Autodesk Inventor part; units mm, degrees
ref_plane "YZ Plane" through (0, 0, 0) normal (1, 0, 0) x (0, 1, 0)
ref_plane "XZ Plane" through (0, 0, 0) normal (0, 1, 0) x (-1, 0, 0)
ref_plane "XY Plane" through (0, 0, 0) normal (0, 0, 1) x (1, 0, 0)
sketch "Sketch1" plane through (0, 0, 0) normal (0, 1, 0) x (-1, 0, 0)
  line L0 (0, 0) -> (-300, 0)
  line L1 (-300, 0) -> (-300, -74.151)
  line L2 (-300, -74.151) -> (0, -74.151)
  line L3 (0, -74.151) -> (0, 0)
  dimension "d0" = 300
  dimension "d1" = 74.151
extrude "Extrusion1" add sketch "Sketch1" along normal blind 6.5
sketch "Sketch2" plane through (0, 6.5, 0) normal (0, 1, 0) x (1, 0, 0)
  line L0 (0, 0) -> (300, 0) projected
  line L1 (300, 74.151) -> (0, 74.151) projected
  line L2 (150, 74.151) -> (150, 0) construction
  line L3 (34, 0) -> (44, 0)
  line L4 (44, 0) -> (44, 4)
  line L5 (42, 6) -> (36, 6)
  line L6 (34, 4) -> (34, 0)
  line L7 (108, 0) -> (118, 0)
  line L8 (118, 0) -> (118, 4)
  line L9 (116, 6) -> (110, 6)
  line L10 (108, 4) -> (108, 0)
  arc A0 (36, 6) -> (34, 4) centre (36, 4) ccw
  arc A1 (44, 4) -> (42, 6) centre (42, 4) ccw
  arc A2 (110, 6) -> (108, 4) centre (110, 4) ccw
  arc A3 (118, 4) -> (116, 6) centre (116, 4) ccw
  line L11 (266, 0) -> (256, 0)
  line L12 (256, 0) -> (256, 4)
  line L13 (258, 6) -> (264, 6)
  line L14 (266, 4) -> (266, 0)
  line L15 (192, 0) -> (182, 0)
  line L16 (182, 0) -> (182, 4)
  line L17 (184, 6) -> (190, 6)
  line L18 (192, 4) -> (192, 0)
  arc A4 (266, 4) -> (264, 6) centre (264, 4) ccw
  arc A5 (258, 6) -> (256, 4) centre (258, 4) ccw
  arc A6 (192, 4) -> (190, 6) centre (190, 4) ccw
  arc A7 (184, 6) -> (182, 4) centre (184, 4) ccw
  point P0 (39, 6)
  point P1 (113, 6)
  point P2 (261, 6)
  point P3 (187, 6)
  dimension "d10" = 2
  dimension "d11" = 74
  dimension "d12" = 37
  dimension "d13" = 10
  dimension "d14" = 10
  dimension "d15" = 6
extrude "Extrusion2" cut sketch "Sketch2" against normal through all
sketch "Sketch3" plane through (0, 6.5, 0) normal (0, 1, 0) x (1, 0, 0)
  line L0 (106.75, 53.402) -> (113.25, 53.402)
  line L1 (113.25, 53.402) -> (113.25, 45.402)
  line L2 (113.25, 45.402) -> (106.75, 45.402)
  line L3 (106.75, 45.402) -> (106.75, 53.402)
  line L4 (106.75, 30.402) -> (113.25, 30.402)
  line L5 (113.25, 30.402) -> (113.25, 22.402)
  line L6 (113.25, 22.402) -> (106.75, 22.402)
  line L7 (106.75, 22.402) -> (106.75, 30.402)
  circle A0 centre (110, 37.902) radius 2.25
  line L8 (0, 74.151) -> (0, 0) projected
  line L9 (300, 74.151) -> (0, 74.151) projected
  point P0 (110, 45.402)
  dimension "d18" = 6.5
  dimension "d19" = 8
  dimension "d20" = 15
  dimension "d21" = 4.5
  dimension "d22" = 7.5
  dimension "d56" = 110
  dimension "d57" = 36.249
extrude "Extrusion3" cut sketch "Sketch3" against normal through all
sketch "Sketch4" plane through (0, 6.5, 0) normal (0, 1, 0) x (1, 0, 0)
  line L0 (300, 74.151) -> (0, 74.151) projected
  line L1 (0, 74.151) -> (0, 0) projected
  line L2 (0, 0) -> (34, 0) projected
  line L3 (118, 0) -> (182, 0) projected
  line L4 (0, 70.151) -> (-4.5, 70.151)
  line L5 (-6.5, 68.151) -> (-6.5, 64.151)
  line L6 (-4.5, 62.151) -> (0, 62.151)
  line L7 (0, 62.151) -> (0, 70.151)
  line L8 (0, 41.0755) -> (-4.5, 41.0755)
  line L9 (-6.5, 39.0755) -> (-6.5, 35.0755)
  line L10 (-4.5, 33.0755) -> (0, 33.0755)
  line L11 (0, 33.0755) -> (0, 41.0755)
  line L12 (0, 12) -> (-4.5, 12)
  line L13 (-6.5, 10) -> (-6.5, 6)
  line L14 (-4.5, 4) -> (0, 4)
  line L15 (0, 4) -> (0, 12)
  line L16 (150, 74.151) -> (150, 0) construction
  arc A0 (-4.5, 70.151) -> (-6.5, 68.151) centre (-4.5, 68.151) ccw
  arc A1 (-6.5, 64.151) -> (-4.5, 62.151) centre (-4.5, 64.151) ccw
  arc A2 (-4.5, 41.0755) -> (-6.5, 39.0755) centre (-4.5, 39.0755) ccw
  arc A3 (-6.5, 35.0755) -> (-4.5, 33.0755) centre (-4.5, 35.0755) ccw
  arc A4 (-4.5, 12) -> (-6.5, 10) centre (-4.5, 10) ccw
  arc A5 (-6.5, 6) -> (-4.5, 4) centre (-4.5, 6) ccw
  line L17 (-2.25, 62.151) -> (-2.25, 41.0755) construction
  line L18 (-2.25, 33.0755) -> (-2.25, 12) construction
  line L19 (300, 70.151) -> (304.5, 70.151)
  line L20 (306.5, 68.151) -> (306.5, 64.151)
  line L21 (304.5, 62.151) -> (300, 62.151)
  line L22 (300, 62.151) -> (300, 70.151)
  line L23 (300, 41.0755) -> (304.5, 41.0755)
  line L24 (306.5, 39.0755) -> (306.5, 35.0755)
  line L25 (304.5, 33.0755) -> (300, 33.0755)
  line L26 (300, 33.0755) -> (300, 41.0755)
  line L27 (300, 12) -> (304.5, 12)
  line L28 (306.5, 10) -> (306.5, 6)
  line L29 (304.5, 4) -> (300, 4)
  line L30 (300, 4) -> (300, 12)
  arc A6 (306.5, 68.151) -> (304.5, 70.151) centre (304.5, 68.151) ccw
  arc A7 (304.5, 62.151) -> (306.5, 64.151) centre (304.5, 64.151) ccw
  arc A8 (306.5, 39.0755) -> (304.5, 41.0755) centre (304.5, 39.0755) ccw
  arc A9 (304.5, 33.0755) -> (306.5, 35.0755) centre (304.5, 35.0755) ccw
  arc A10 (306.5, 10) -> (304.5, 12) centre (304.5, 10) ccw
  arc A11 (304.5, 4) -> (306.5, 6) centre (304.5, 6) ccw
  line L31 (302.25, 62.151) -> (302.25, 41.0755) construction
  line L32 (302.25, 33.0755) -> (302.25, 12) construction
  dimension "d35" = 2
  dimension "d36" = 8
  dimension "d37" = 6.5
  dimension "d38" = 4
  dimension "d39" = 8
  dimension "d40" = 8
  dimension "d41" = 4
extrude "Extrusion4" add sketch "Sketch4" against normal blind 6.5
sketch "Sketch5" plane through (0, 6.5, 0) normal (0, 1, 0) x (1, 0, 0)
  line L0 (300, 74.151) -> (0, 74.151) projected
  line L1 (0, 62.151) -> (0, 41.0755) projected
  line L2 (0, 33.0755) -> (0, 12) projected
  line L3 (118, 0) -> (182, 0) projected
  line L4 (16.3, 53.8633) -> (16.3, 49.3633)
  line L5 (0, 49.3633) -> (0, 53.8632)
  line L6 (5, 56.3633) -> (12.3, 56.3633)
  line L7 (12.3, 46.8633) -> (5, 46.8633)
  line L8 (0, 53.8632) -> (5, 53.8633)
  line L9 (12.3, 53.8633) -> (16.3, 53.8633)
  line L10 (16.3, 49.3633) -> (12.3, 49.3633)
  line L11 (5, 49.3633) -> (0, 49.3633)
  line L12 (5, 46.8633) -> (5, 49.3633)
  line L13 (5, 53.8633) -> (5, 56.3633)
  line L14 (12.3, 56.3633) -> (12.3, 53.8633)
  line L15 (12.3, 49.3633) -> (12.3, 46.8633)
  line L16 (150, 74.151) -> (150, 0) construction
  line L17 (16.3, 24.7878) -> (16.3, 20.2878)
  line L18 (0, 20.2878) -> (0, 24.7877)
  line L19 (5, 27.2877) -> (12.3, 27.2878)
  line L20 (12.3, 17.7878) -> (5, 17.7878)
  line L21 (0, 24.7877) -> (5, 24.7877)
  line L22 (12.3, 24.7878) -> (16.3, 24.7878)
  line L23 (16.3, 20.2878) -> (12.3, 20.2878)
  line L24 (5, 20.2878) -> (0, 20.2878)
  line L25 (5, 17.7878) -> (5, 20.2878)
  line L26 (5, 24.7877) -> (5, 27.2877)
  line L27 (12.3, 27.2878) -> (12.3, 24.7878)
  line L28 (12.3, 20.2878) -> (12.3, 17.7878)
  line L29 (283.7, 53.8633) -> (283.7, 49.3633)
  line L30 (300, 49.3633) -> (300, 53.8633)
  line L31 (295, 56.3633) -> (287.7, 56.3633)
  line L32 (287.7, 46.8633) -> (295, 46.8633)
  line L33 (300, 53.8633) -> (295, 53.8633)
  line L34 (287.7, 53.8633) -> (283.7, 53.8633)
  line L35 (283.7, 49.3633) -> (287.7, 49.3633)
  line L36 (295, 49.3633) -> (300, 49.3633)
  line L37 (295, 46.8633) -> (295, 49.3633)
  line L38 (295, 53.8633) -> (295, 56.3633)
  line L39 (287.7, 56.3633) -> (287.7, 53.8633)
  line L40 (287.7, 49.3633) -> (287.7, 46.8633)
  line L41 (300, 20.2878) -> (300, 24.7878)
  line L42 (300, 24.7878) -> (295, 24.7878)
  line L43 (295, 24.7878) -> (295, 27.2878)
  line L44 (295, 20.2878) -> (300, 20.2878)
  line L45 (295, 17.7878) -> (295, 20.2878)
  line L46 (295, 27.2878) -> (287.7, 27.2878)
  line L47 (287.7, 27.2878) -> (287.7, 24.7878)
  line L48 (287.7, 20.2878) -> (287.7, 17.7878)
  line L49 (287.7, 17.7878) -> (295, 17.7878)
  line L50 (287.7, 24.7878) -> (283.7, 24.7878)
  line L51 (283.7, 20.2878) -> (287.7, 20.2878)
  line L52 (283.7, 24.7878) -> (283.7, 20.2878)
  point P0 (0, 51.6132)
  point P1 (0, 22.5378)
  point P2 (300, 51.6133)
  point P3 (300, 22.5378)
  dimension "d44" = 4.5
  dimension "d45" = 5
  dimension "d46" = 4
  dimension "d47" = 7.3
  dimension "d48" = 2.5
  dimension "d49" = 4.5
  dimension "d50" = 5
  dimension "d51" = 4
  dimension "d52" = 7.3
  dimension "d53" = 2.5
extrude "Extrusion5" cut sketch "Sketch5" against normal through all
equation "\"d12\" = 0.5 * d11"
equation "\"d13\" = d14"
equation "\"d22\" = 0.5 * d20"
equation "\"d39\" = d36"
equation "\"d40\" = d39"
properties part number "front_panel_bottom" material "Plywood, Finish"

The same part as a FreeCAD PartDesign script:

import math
import FreeCAD as App
import Part
import Sketcher
from FreeCAD import Vector
Q = App.Units.Quantity


def add_polygon(sketch, points):
    """Adds a closed chain of lines whose ends are joined by coincident constraints."""
    first, n = sketch.GeometryCount, len(points)
    for a, b in zip(points, points[1:] + points[:1]):
        sketch.addGeometry(Part.LineSegment(App.Vector(*a, 0), App.Vector(*b, 0)), False)
    for i in range(n):
        sketch.addConstraint(Sketcher.Constraint("Coincident", first + i, 2, first + (i + 1) % n, 1))

doc = App.newDocument("Part")
body = doc.addObject("PartDesign::Body", "Body")

# Sketch on XZ plane
sketch1 = body.newObject("Sketcher::SketchObject", "Sketch")
sketch1.AttachmentSupport = (doc.getObject("XZ_Plane"), [""])
sketch1.MapMode = "FlatFace"
add_polygon(sketch1, [(0, -74), (0, 0), (300, 0), (300, -74)])  # lines 0-3
sketch1.addConstraint([
    Sketcher.Constraint("Vertical", 0),
    Sketcher.Constraint("Horizontal", 1),
    Sketcher.Constraint("Vertical", 2),
    Sketcher.Constraint("Horizontal", 3),
    Sketcher.Constraint("Coincident", 0, 2, -1, 1),
    Sketcher.Constraint("DistanceX", 1, 1, 1, 2, Q("300 mm")),
    Sketcher.Constraint("DistanceY", 0, 1, 0, 2, Q("74.151 mm")),
])
pad1 = body.newObject("PartDesign::Pad", "Pad")
pad1.Profile = sketch1
pad1.Length = 6.5
pad1.Reversed = True

# Sketch on XZ plane
sketch2 = body.newObject("Sketcher::SketchObject", "Sketch001")
sketch2.AttachmentSupport = (doc.getObject("XZ_Plane"), [""])
sketch2.MapMode = "FlatFace"
sketch2.AttachmentOffset = App.Placement(Vector(0, 0, -6.5), App.Rotation())
sketch2.addGeometry([
    Part.LineSegment(Vector(34, -4, 0), Vector(34, 0, 0)),  # 0
    Part.LineSegment(Vector(34, 0, 0), Vector(44, 0, 0)),  # 1
    Part.LineSegment(Vector(44, 0, 0), Vector(44, -4, 0)),  # 2
    Part.ArcOfCircle(Part.Circle(Vector(42, -4, 0), Vector(0, 0, 1), 2), math.radians(-90), math.radians(0)),  # 3
    Part.LineSegment(Vector(42, -6, 0), Vector(36, -6, 0)),  # 4
    Part.ArcOfCircle(Part.Circle(Vector(36, -4, 0), Vector(0, 0, 1), 2), math.radians(180), math.radians(270)),  # 5
    Part.LineSegment(Vector(256, -4, 0), Vector(256, 0, 0)),  # 6
    Part.LineSegment(Vector(256, 0, 0), Vector(266, 0, 0)),  # 7
    Part.LineSegment(Vector(266, 0, 0), Vector(266, -4, 0)),  # 8
    Part.ArcOfCircle(Part.Circle(Vector(264, -4, 0), Vector(0, 0, 1), 2), math.radians(-90), math.radians(0)),  # 9
    Part.LineSegment(Vector(264, -6, 0), Vector(258, -6, 0)),  # 10
    Part.ArcOfCircle(Part.Circle(Vector(258, -4, 0), Vector(0, 0, 1), 2), math.radians(180), math.radians(270)),  # 11
    Part.LineSegment(Vector(182, -4, 0), Vector(182, 0, 0)),  # 12
    Part.LineSegment(Vector(182, 0, 0), Vector(192, 0, 0)),  # 13
    Part.LineSegment(Vector(192, 0, 0), Vector(192, -4, 0)),  # 14
    Part.ArcOfCircle(Part.Circle(Vector(190, -4, 0), Vector(0, 0, 1), 2), math.radians(-90), math.radians(0)),  # 15
    Part.LineSegment(Vector(190, -6, 0), Vector(184, -6, 0)),  # 16
    Part.ArcOfCircle(Part.Circle(Vector(184, -4, 0), Vector(0, 0, 1), 2), math.radians(180), math.radians(270)),  # 17
    Part.LineSegment(Vector(108, -4, 0), Vector(108, 0, 0)),  # 18
    Part.LineSegment(Vector(108, 0, 0), Vector(118, 0, 0)),  # 19
    Part.LineSegment(Vector(118, 0, 0), Vector(118, -4, 0)),  # 20
    Part.ArcOfCircle(Part.Circle(Vector(116, -4, 0), Vector(0, 0, 1), 2), math.radians(-90), math.radians(0)),  # 21
    Part.LineSegment(Vector(116, -6, 0), Vector(110, -6, 0)),  # 22
    Part.ArcOfCircle(Part.Circle(Vector(110, -4, 0), Vector(0, 0, 1), 2), math.radians(180), math.radians(270)),  # 23
], False)
sketch2.addConstraint([
    Sketcher.Constraint("Coincident", 0, 2, 1, 1),
    Sketcher.Constraint("Coincident", 1, 2, 2, 1),
    Sketcher.Constraint("Tangent", 2, 2, 3, 2),
    Sketcher.Constraint("Tangent", 3, 1, 4, 1),
    Sketcher.Constraint("Tangent", 4, 2, 5, 2),
    Sketcher.Constraint("Tangent", 5, 1, 0, 1),
    Sketcher.Constraint("Coincident", 6, 2, 7, 1),
    Sketcher.Constraint("Coincident", 7, 2, 8, 1),
    Sketcher.Constraint("Tangent", 8, 2, 9, 2),
    Sketcher.Constraint("Tangent", 9, 1, 10, 1),
    Sketcher.Constraint("Tangent", 10, 2, 11, 2),
    Sketcher.Constraint("Tangent", 11, 1, 6, 1),
    Sketcher.Constraint("Coincident", 12, 2, 13, 1),
    Sketcher.Constraint("Coincident", 13, 2, 14, 1),
    Sketcher.Constraint("Tangent", 14, 2, 15, 2),
    Sketcher.Constraint("Tangent", 15, 1, 16, 1),
    Sketcher.Constraint("Tangent", 16, 2, 17, 2),
    Sketcher.Constraint("Tangent", 17, 1, 12, 1),
    Sketcher.Constraint("Coincident", 18, 2, 19, 1),
    Sketcher.Constraint("Coincident", 19, 2, 20, 1),
    Sketcher.Constraint("Tangent", 20, 2, 21, 2),
    Sketcher.Constraint("Tangent", 21, 1, 22, 1),
    Sketcher.Constraint("Tangent", 22, 2, 23, 2),
    Sketcher.Constraint("Tangent", 23, 1, 18, 1),
    Sketcher.Constraint("Vertical", 0),
    Sketcher.Constraint("Horizontal", 1),
    Sketcher.Constraint("Vertical", 2),
    Sketcher.Constraint("Horizontal", 4),
    Sketcher.Constraint("Vertical", 6),
    Sketcher.Constraint("Horizontal", 7),
    Sketcher.Constraint("Vertical", 8),
    Sketcher.Constraint("Horizontal", 10),
    Sketcher.Constraint("Vertical", 12),
    Sketcher.Constraint("Horizontal", 13),
    Sketcher.Constraint("Vertical", 14),
    Sketcher.Constraint("Horizontal", 16),
    Sketcher.Constraint("Vertical", 18),
    Sketcher.Constraint("Horizontal", 19),
    Sketcher.Constraint("Vertical", 20),
    Sketcher.Constraint("Horizontal", 22),
    Sketcher.Constraint("Equal", 3, 5),
    Sketcher.Constraint("Equal", 5, 9),
    Sketcher.Constraint("Equal", 9, 11),
    Sketcher.Constraint("Equal", 11, 15),
    Sketcher.Constraint("Equal", 15, 17),
    Sketcher.Constraint("Equal", 17, 21),
    Sketcher.Constraint("Equal", 21, 23),
    Sketcher.Constraint("PointOnObject", 0, 2, -1),
    Sketcher.Constraint("PointOnObject", 6, 2, -1),
    Sketcher.Constraint("PointOnObject", 12, 2, -1),
    Sketcher.Constraint("PointOnObject", 18, 2, -1),
    Sketcher.Constraint("Horizontal", 5, 3, 9, 3),
    Sketcher.Constraint("Horizontal", 11, 3, 15, 3),
    Sketcher.Constraint("Horizontal", 17, 3, 21, 3),
    Sketcher.Constraint("Equal", 1, 7),
    Sketcher.Constraint("Equal", 7, 13),
    Sketcher.Constraint("Equal", 13, 19),
    Sketcher.Constraint("Radius", 3, Q("2 mm")),
    Sketcher.Constraint("DistanceX", 1, 1, 1, 2, Q("10 mm")),
    Sketcher.Constraint("DistanceY", 3, 1, -1, 1, Q("6 mm")),
    Sketcher.Constraint("DistanceX", 15, 3, 9, 3, Q("74 mm")),
    Sketcher.Constraint("DistanceX", 3, 3, 21, 3, Q("74 mm")),
    Sketcher.Constraint("DistanceX", 21, 3, 15, 3, Q("74 mm")),
    Sketcher.Constraint("DistanceX", -1, 1, 3, 3, Q("42 mm")),
])
pocket1 = body.newObject("PartDesign::Pocket", "Pocket")
pocket1.Profile = sketch2
pocket1.Type = "ThroughAll"
pocket1.Reversed = True

# Sketch on XZ plane
sketch3 = body.newObject("Sketcher::SketchObject", "Sketch002")
sketch3.AttachmentSupport = (doc.getObject("XZ_Plane"), [""])
sketch3.MapMode = "FlatFace"
sketch3.AttachmentOffset = App.Placement(Vector(0, 0, -6.5), App.Rotation())
add_polygon(sketch3, [(113.2, -53.4), (106.8, -53.4), (106.8, -45.4), (113.2, -45.4)])  # lines 0-3
add_polygon(sketch3, [(113.2, -30.4), (106.8, -30.4), (106.8, -22.4), (113.2, -22.4)])  # lines 4-7
sketch3.addGeometry(Part.Circle(Vector(110, -37.9, 0), Vector(0, 0, 1), 2.2), False)  # 8
sketch3.addConstraint([
    Sketcher.Constraint("Horizontal", 0),
    Sketcher.Constraint("Vertical", 1),
    Sketcher.Constraint("Horizontal", 2),
    Sketcher.Constraint("Vertical", 3),
    Sketcher.Constraint("Horizontal", 4),
    Sketcher.Constraint("Vertical", 5),
    Sketcher.Constraint("Horizontal", 6),
    Sketcher.Constraint("Vertical", 7),
    Sketcher.Constraint("Vertical", 1, 2, 4, 2),
    Sketcher.Constraint("Vertical", 3, 2, 6, 2),
    Sketcher.Constraint("Equal", 3, 5),
    Sketcher.Constraint("Diameter", 8, Q("4.5 mm")),
    Sketcher.Constraint("DistanceY", 1, 1, 1, 2, Q("8 mm")),
    Sketcher.Constraint("DistanceX", 0, 2, 0, 1, Q("6.5 mm")),
    Sketcher.Constraint("DistanceX", -1, 1, 8, 3, Q("110 mm")),
    Sketcher.Constraint("DistanceY", 1, 2, 4, 2, Q("15 mm")),
    Sketcher.Constraint("DistanceY", 1, 2, 8, 3, Q("7.5 mm")),
    Sketcher.Constraint("DistanceX", -1, 1, 0, 2, Q("106.75 mm")),
    Sketcher.Constraint("DistanceY", 8, 3, -1, 1, Q("37.902 mm")),
])
pocket2 = body.newObject("PartDesign::Pocket", "Pocket001")
pocket2.Profile = sketch3
pocket2.Type = "ThroughAll"
pocket2.Reversed = True

# Sketch on XZ plane
sketch4 = body.newObject("Sketcher::SketchObject", "Sketch003")
sketch4.AttachmentSupport = (doc.getObject("XZ_Plane"), [""])
sketch4.MapMode = "FlatFace"
sketch4.AttachmentOffset = App.Placement(Vector(0, 0, -6.5), App.Rotation())
sketch4.addGeometry([
    Part.LineSegment(Vector(0, -4, 0), Vector(0, -12, 0)),  # 0
    Part.LineSegment(Vector(0, -12, 0), Vector(-4.5, -12, 0)),  # 1
    Part.ArcOfCircle(Part.Circle(Vector(-4.5, -10, 0), Vector(0, 0, 1), 2), math.radians(180), math.radians(270)),  # 2
    Part.LineSegment(Vector(-6.5, -10, 0), Vector(-6.5, -6, 0)),  # 3
    Part.ArcOfCircle(Part.Circle(Vector(-4.5, -6, 0), Vector(0, 0, 1), 2), math.radians(90), math.radians(180)),  # 4
    Part.LineSegment(Vector(-4.5, -4, 0), Vector(0, -4, 0)),  # 5
    Part.LineSegment(Vector(0, -33.1, 0), Vector(0, -41.1, 0)),  # 6
    Part.LineSegment(Vector(0, -41.1, 0), Vector(-4.5, -41.1, 0)),  # 7
    Part.ArcOfCircle(Part.Circle(Vector(-4.5, -39.1, 0), Vector(0, 0, 1), 2), math.radians(180), math.radians(270)),  # 8
    Part.LineSegment(Vector(-6.5, -39.1, 0), Vector(-6.5, -35.1, 0)),  # 9
    Part.ArcOfCircle(Part.Circle(Vector(-4.5, -35.1, 0), Vector(0, 0, 1), 2), math.radians(90), math.radians(180)),  # 10
    Part.LineSegment(Vector(-4.5, -33.1, 0), Vector(0, -33.1, 0)),  # 11
    Part.LineSegment(Vector(0, -62.2, 0), Vector(0, -70.2, 0)),  # 12
    Part.LineSegment(Vector(0, -70.2, 0), Vector(-4.5, -70.2, 0)),  # 13
    Part.ArcOfCircle(Part.Circle(Vector(-4.5, -68.2, 0), Vector(0, 0, 1), 2), math.radians(180), math.radians(270)),  # 14
    Part.LineSegment(Vector(-6.5, -68.2, 0), Vector(-6.5, -64.2, 0)),  # 15
    Part.ArcOfCircle(Part.Circle(Vector(-4.5, -64.2, 0), Vector(0, 0, 1), 2), math.radians(90), math.radians(180)),  # 16
    Part.LineSegment(Vector(-4.5, -62.2, 0), Vector(0, -62.2, 0)),  # 17
    Part.LineSegment(Vector(304.5, -70.2, 0), Vector(300, -70.2, 0)),  # 18
    Part.LineSegment(Vector(300, -70.2, 0), Vector(300, -62.2, 0)),  # 19
    Part.LineSegment(Vector(300, -62.2, 0), Vector(304.5, -62.2, 0)),  # 20
    Part.ArcOfCircle(Part.Circle(Vector(304.5, -64.2, 0), Vector(0, 0, 1), 2), math.radians(0), math.radians(90)),  # 21
    Part.LineSegment(Vector(306.5, -64.2, 0), Vector(306.5, -68.2, 0)),  # 22
    Part.ArcOfCircle(Part.Circle(Vector(304.5, -68.2, 0), Vector(0, 0, 1), 2), math.radians(-90), math.radians(0)),  # 23
    Part.LineSegment(Vector(304.5, -41.1, 0), Vector(300, -41.1, 0)),  # 24
    Part.LineSegment(Vector(300, -41.1, 0), Vector(300, -33.1, 0)),  # 25
    Part.LineSegment(Vector(300, -33.1, 0), Vector(304.5, -33.1, 0)),  # 26
    Part.ArcOfCircle(Part.Circle(Vector(304.5, -35.1, 0), Vector(0, 0, 1), 2), math.radians(0), math.radians(90)),  # 27
    Part.LineSegment(Vector(306.5, -35.1, 0), Vector(306.5, -39.1, 0)),  # 28
    Part.ArcOfCircle(Part.Circle(Vector(304.5, -39.1, 0), Vector(0, 0, 1), 2), math.radians(-90), math.radians(0)),  # 29
    Part.LineSegment(Vector(304.5, -12, 0), Vector(300, -12, 0)),  # 30
    Part.LineSegment(Vector(300, -12, 0), Vector(300, -4, 0)),  # 31
    Part.LineSegment(Vector(300, -4, 0), Vector(304.5, -4, 0)),  # 32
    Part.ArcOfCircle(Part.Circle(Vector(304.5, -6, 0), Vector(0, 0, 1), 2), math.radians(0), math.radians(90)),  # 33
    Part.LineSegment(Vector(306.5, -6, 0), Vector(306.5, -10, 0)),  # 34
    Part.ArcOfCircle(Part.Circle(Vector(304.5, -10, 0), Vector(0, 0, 1), 2), math.radians(-90), math.radians(0)),  # 35
], False)
sketch4.addConstraint([
    Sketcher.Constraint("Coincident", 0, 2, 1, 1),
    Sketcher.Constraint("Tangent", 1, 2, 2, 2),
    Sketcher.Constraint("Tangent", 2, 1, 3, 1),
    Sketcher.Constraint("Tangent", 3, 2, 4, 2),
    Sketcher.Constraint("Tangent", 4, 1, 5, 1),
    Sketcher.Constraint("Coincident", 5, 2, 0, 1),
    Sketcher.Constraint("Coincident", 6, 2, 7, 1),
    Sketcher.Constraint("Tangent", 7, 2, 8, 2),
    Sketcher.Constraint("Tangent", 8, 1, 9, 1),
    Sketcher.Constraint("Tangent", 9, 2, 10, 2),
    Sketcher.Constraint("Tangent", 10, 1, 11, 1),
    Sketcher.Constraint("Coincident", 11, 2, 6, 1),
    Sketcher.Constraint("Coincident", 12, 2, 13, 1),
    Sketcher.Constraint("Tangent", 13, 2, 14, 2),
    Sketcher.Constraint("Tangent", 14, 1, 15, 1),
    Sketcher.Constraint("Tangent", 15, 2, 16, 2),
    Sketcher.Constraint("Tangent", 16, 1, 17, 1),
    Sketcher.Constraint("Coincident", 17, 2, 12, 1),
    Sketcher.Constraint("Coincident", 18, 2, 19, 1),
    Sketcher.Constraint("Coincident", 19, 2, 20, 1),
    Sketcher.Constraint("Tangent", 20, 2, 21, 2),
    Sketcher.Constraint("Tangent", 21, 1, 22, 1),
    Sketcher.Constraint("Tangent", 22, 2, 23, 2),
    Sketcher.Constraint("Tangent", 23, 1, 18, 1),
    Sketcher.Constraint("Coincident", 24, 2, 25, 1),
    Sketcher.Constraint("Coincident", 25, 2, 26, 1),
    Sketcher.Constraint("Tangent", 26, 2, 27, 2),
    Sketcher.Constraint("Tangent", 27, 1, 28, 1),
    Sketcher.Constraint("Tangent", 28, 2, 29, 2),
    Sketcher.Constraint("Tangent", 29, 1, 24, 1),
    Sketcher.Constraint("Coincident", 30, 2, 31, 1),
    Sketcher.Constraint("Coincident", 31, 2, 32, 1),
    Sketcher.Constraint("Tangent", 32, 2, 33, 2),
    Sketcher.Constraint("Tangent", 33, 1, 34, 1),
    Sketcher.Constraint("Tangent", 34, 2, 35, 2),
    Sketcher.Constraint("Tangent", 35, 1, 30, 1),
    Sketcher.Constraint("Vertical", 0),
    Sketcher.Constraint("Horizontal", 1),
    Sketcher.Constraint("Vertical", 3),
    Sketcher.Constraint("Horizontal", 5),
    Sketcher.Constraint("Vertical", 6),
    Sketcher.Constraint("Horizontal", 7),
    Sketcher.Constraint("Vertical", 9),
    Sketcher.Constraint("Horizontal", 11),
    Sketcher.Constraint("Vertical", 12),
    Sketcher.Constraint("Horizontal", 13),
    Sketcher.Constraint("Vertical", 15),
    Sketcher.Constraint("Horizontal", 17),
    Sketcher.Constraint("Horizontal", 18),
    Sketcher.Constraint("Vertical", 19),
    Sketcher.Constraint("Horizontal", 20),
    Sketcher.Constraint("Vertical", 22),
    Sketcher.Constraint("Horizontal", 24),
    Sketcher.Constraint("Vertical", 25),
    Sketcher.Constraint("Horizontal", 26),
    Sketcher.Constraint("Vertical", 28),
    Sketcher.Constraint("Horizontal", 30),
    Sketcher.Constraint("Vertical", 31),
    Sketcher.Constraint("Horizontal", 32),
    Sketcher.Constraint("Vertical", 34),
    Sketcher.Constraint("Equal", 2, 4),
    Sketcher.Constraint("Equal", 4, 8),
    Sketcher.Constraint("Equal", 8, 10),
    Sketcher.Constraint("Equal", 10, 14),
    Sketcher.Constraint("Equal", 14, 16),
    Sketcher.Constraint("Equal", 16, 21),
    Sketcher.Constraint("Equal", 21, 23),
    Sketcher.Constraint("Equal", 23, 27),
    Sketcher.Constraint("Equal", 27, 29),
    Sketcher.Constraint("Equal", 29, 33),
    Sketcher.Constraint("Equal", 33, 35),
    Sketcher.Constraint("PointOnObject", 0, 2, -2),
    Sketcher.Constraint("PointOnObject", 6, 2, -2),
    Sketcher.Constraint("PointOnObject", 12, 2, -2),
    Sketcher.Constraint("Horizontal", 16, 3, 21, 3),
    Sketcher.Constraint("Horizontal", 14, 3, 23, 3),
    Sketcher.Constraint("Horizontal", 10, 3, 27, 3),
    Sketcher.Constraint("Horizontal", 8, 3, 29, 3),
    Sketcher.Constraint("Horizontal", 4, 3, 33, 3),
    Sketcher.Constraint("Horizontal", 2, 3, 35, 3),
    Sketcher.Constraint("Vertical", 4, 3, 8, 3),
    Sketcher.Constraint("Vertical", 10, 3, 14, 3),
    Sketcher.Constraint("Vertical", 23, 3, 27, 3),
    Sketcher.Constraint("Vertical", 29, 3, 33, 3),
    Sketcher.Constraint("Vertical", 19, 2, 24, 2),
    Sketcher.Constraint("Vertical", 25, 2, 30, 2),
    Sketcher.Constraint("Equal", 17, 18),
    Sketcher.Constraint("Equal", 0, 6),
    Sketcher.Constraint("Equal", 6, 12),
    Sketcher.Constraint("Radius", 2, Q("2 mm")),
    Sketcher.Constraint("DistanceY", 0, 2, 0, 1, Q("8 mm")),
    Sketcher.Constraint("DistanceY", 4, 1, -1, 1, Q("4 mm")),
    Sketcher.Constraint("DistanceX", 2, 1, -1, 1, Q("6.5 mm")),
    Sketcher.Constraint("DistanceX", -1, 1, 18, 2, Q("300 mm")),
    Sketcher.Constraint("DistanceY", 14, 3, -1, 1, Q("68.151 mm")),
    Sketcher.Constraint("DistanceY", 8, 3, -1, 1, Q("39.0755 mm")),
])
pad2 = body.newObject("PartDesign::Pad", "Pad001")
pad2.Profile = sketch4
pad2.Length = 6.5

# Sketch on XZ plane
sketch5 = body.newObject("Sketcher::SketchObject", "Sketch004")
sketch5.AttachmentSupport = (doc.getObject("XZ_Plane"), [""])
sketch5.MapMode = "FlatFace"
sketch5.AttachmentOffset = App.Placement(Vector(0, 0, -6.5), App.Rotation())
add_polygon(sketch5, [(5, -53.9), (0, -53.9), (0, -49.4), (5, -49.4), (5, -46.9), (12.3, -46.9), (12.3, -49.4), (16.3, -49.4), (16.3, -53.9), (12.3, -53.9), (12.3, -56.4), (5, -56.4)])  # lines 0-11
add_polygon(sketch5, [(5, -24.8), (0, -24.8), (0, -20.3), (5, -20.3), (5, -17.8), (12.3, -17.8), (12.3, -20.3), (16.3, -20.3), (16.3, -24.8), (12.3, -24.8), (12.3, -27.3), (5, -27.3)])  # lines 12-23
add_polygon(sketch5, [(287.7, -53.9), (283.7, -53.9), (283.7, -49.4), (287.7, -49.4), (287.7, -46.9), (295, -46.9), (295, -49.4), (300, -49.4), (300, -53.9), (295, -53.9), (295, -56.4), (287.7, -56.4)])  # lines 24-35
add_polygon(sketch5, [(295, -20.3), (300, -20.3), (300, -24.8), (295, -24.8), (295, -27.3), (287.7, -27.3), (287.7, -24.8), (283.7, -24.8), (283.7, -20.3), (287.7, -20.3), (287.7, -17.8), (295, -17.8)])  # lines 36-47
sketch5.addConstraint([
    Sketcher.Constraint("Horizontal", 0),
    Sketcher.Constraint("Vertical", 1),
    Sketcher.Constraint("Horizontal", 2),
    Sketcher.Constraint("Vertical", 3),
    Sketcher.Constraint("Horizontal", 4),
    Sketcher.Constraint("Vertical", 5),
    Sketcher.Constraint("Horizontal", 6),
    Sketcher.Constraint("Vertical", 7),
    Sketcher.Constraint("Horizontal", 8),
    Sketcher.Constraint("Vertical", 9),
    Sketcher.Constraint("Horizontal", 10),
    Sketcher.Constraint("Vertical", 11),
    Sketcher.Constraint("Horizontal", 12),
    Sketcher.Constraint("Vertical", 13),
    Sketcher.Constraint("Horizontal", 14),
    Sketcher.Constraint("Vertical", 15),
    Sketcher.Constraint("Horizontal", 16),
    Sketcher.Constraint("Vertical", 17),
    Sketcher.Constraint("Horizontal", 18),
    Sketcher.Constraint("Vertical", 19),
    Sketcher.Constraint("Horizontal", 20),
    Sketcher.Constraint("Vertical", 21),
    Sketcher.Constraint("Horizontal", 22),
    Sketcher.Constraint("Vertical", 23),
    Sketcher.Constraint("Horizontal", 24),
    Sketcher.Constraint("Vertical", 25),
    Sketcher.Constraint("Horizontal", 26),
    Sketcher.Constraint("Vertical", 27),
    Sketcher.Constraint("Horizontal", 28),
    Sketcher.Constraint("Vertical", 29),
    Sketcher.Constraint("Horizontal", 30),
    Sketcher.Constraint("Vertical", 31),
    Sketcher.Constraint("Horizontal", 32),
    Sketcher.Constraint("Vertical", 33),
    Sketcher.Constraint("Horizontal", 34),
    Sketcher.Constraint("Vertical", 35),
    Sketcher.Constraint("Horizontal", 36),
    Sketcher.Constraint("Vertical", 37),
    Sketcher.Constraint("Horizontal", 38),
    Sketcher.Constraint("Vertical", 39),
    Sketcher.Constraint("Horizontal", 40),
    Sketcher.Constraint("Vertical", 41),
    Sketcher.Constraint("Horizontal", 42),
    Sketcher.Constraint("Vertical", 43),
    Sketcher.Constraint("Horizontal", 44),
    Sketcher.Constraint("Vertical", 45),
    Sketcher.Constraint("Horizontal", 46),
    Sketcher.Constraint("Vertical", 47),
    Sketcher.Constraint("PointOnObject", 0, 2, -2),
    Sketcher.Constraint("PointOnObject", 12, 2, -2),
    Sketcher.Constraint("Horizontal", 2, 2, 5, 2),
    Sketcher.Constraint("Horizontal", 0, 2, 7, 2),
    Sketcher.Constraint("Horizontal", 14, 2, 17, 2),
    Sketcher.Constraint("Horizontal", 12, 2, 19, 2),
    Sketcher.Constraint("Horizontal", 11, 2, 24, 2),
    Sketcher.Constraint("Horizontal", 6, 2, 25, 2),
    Sketcher.Constraint("Horizontal", 4, 2, 27, 2),
    Sketcher.Constraint("Horizontal", 26, 2, 29, 2),
    Sketcher.Constraint("Horizontal", 24, 2, 31, 2),
    Sketcher.Constraint("Horizontal", 10, 2, 33, 2),
    Sketcher.Constraint("Horizontal", 18, 2, 36, 2),
    Sketcher.Constraint("Horizontal", 23, 2, 37, 2),
    Sketcher.Constraint("Horizontal", 22, 2, 39, 2),
    Sketcher.Constraint("Horizontal", 38, 2, 41, 2),
    Sketcher.Constraint("Horizontal", 36, 2, 43, 2),
    Sketcher.Constraint("Horizontal", 16, 2, 45, 2),
    Sketcher.Constraint("Vertical", 5, 2, 8, 2),
    Sketcher.Constraint("Vertical", 3, 2, 10, 2),
    Sketcher.Constraint("Vertical", 11, 2, 14, 2),
    Sketcher.Constraint("Vertical", 9, 2, 16, 2),
    Sketcher.Constraint("Vertical", 7, 2, 18, 2),
    Sketcher.Constraint("Vertical", 17, 2, 20, 2),
    Sketcher.Constraint("Vertical", 15, 2, 22, 2),
    Sketcher.Constraint("Vertical", 29, 2, 32, 2),
    Sketcher.Constraint("Vertical", 27, 2, 34, 2),
    Sketcher.Constraint("Vertical", 31, 2, 36, 2),
    Sketcher.Constraint("Vertical", 33, 2, 38, 2),
    Sketcher.Constraint("Vertical", 35, 2, 40, 2),
    Sketcher.Constraint("Vertical", 25, 2, 42, 2),
    Sketcher.Constraint("Vertical", 41, 2, 44, 2),
    Sketcher.Constraint("Vertical", 39, 2, 46, 2),
    Sketcher.Constraint("Equal", 20, 24),
    Sketcher.Constraint("Equal", 22, 28),
    Sketcher.Constraint("Equal", 14, 30),
    Sketcher.Constraint("Equal", 5, 9),
    Sketcher.Constraint("Equal", 7, 13),
    Sketcher.Constraint("Equal", 11, 15),
    Sketcher.Constraint("Equal", 17, 21),
    Sketcher.Constraint("DistanceX", 0, 2, 0, 1, Q("5 mm")),
    Sketcher.Constraint("DistanceX", 6, 1, 6, 2, Q("4 mm")),
    Sketcher.Constraint("DistanceX", 4, 1, 4, 2, Q("7.3 mm")),
    Sketcher.Constraint("DistanceY", 1, 1, 1, 2, Q("4.5 mm")),
    Sketcher.Constraint("DistanceY", 3, 1, 3, 2, Q("2.5 mm")),
    Sketcher.Constraint("DistanceX", -1, 1, 28, 2, Q("295 mm")),
    Sketcher.Constraint("DistanceY", 0, 2, -1, 1, Q("53.8632 mm")),
    Sketcher.Constraint("DistanceY", 12, 2, -1, 1, Q("24.7877 mm")),
])
pocket3 = body.newObject("PartDesign::Pocket", "Pocket002")
pocket3.Profile = sketch5
pocket3.Type = "ThroughAll"
pocket3.Reversed = True

doc.recompute()
